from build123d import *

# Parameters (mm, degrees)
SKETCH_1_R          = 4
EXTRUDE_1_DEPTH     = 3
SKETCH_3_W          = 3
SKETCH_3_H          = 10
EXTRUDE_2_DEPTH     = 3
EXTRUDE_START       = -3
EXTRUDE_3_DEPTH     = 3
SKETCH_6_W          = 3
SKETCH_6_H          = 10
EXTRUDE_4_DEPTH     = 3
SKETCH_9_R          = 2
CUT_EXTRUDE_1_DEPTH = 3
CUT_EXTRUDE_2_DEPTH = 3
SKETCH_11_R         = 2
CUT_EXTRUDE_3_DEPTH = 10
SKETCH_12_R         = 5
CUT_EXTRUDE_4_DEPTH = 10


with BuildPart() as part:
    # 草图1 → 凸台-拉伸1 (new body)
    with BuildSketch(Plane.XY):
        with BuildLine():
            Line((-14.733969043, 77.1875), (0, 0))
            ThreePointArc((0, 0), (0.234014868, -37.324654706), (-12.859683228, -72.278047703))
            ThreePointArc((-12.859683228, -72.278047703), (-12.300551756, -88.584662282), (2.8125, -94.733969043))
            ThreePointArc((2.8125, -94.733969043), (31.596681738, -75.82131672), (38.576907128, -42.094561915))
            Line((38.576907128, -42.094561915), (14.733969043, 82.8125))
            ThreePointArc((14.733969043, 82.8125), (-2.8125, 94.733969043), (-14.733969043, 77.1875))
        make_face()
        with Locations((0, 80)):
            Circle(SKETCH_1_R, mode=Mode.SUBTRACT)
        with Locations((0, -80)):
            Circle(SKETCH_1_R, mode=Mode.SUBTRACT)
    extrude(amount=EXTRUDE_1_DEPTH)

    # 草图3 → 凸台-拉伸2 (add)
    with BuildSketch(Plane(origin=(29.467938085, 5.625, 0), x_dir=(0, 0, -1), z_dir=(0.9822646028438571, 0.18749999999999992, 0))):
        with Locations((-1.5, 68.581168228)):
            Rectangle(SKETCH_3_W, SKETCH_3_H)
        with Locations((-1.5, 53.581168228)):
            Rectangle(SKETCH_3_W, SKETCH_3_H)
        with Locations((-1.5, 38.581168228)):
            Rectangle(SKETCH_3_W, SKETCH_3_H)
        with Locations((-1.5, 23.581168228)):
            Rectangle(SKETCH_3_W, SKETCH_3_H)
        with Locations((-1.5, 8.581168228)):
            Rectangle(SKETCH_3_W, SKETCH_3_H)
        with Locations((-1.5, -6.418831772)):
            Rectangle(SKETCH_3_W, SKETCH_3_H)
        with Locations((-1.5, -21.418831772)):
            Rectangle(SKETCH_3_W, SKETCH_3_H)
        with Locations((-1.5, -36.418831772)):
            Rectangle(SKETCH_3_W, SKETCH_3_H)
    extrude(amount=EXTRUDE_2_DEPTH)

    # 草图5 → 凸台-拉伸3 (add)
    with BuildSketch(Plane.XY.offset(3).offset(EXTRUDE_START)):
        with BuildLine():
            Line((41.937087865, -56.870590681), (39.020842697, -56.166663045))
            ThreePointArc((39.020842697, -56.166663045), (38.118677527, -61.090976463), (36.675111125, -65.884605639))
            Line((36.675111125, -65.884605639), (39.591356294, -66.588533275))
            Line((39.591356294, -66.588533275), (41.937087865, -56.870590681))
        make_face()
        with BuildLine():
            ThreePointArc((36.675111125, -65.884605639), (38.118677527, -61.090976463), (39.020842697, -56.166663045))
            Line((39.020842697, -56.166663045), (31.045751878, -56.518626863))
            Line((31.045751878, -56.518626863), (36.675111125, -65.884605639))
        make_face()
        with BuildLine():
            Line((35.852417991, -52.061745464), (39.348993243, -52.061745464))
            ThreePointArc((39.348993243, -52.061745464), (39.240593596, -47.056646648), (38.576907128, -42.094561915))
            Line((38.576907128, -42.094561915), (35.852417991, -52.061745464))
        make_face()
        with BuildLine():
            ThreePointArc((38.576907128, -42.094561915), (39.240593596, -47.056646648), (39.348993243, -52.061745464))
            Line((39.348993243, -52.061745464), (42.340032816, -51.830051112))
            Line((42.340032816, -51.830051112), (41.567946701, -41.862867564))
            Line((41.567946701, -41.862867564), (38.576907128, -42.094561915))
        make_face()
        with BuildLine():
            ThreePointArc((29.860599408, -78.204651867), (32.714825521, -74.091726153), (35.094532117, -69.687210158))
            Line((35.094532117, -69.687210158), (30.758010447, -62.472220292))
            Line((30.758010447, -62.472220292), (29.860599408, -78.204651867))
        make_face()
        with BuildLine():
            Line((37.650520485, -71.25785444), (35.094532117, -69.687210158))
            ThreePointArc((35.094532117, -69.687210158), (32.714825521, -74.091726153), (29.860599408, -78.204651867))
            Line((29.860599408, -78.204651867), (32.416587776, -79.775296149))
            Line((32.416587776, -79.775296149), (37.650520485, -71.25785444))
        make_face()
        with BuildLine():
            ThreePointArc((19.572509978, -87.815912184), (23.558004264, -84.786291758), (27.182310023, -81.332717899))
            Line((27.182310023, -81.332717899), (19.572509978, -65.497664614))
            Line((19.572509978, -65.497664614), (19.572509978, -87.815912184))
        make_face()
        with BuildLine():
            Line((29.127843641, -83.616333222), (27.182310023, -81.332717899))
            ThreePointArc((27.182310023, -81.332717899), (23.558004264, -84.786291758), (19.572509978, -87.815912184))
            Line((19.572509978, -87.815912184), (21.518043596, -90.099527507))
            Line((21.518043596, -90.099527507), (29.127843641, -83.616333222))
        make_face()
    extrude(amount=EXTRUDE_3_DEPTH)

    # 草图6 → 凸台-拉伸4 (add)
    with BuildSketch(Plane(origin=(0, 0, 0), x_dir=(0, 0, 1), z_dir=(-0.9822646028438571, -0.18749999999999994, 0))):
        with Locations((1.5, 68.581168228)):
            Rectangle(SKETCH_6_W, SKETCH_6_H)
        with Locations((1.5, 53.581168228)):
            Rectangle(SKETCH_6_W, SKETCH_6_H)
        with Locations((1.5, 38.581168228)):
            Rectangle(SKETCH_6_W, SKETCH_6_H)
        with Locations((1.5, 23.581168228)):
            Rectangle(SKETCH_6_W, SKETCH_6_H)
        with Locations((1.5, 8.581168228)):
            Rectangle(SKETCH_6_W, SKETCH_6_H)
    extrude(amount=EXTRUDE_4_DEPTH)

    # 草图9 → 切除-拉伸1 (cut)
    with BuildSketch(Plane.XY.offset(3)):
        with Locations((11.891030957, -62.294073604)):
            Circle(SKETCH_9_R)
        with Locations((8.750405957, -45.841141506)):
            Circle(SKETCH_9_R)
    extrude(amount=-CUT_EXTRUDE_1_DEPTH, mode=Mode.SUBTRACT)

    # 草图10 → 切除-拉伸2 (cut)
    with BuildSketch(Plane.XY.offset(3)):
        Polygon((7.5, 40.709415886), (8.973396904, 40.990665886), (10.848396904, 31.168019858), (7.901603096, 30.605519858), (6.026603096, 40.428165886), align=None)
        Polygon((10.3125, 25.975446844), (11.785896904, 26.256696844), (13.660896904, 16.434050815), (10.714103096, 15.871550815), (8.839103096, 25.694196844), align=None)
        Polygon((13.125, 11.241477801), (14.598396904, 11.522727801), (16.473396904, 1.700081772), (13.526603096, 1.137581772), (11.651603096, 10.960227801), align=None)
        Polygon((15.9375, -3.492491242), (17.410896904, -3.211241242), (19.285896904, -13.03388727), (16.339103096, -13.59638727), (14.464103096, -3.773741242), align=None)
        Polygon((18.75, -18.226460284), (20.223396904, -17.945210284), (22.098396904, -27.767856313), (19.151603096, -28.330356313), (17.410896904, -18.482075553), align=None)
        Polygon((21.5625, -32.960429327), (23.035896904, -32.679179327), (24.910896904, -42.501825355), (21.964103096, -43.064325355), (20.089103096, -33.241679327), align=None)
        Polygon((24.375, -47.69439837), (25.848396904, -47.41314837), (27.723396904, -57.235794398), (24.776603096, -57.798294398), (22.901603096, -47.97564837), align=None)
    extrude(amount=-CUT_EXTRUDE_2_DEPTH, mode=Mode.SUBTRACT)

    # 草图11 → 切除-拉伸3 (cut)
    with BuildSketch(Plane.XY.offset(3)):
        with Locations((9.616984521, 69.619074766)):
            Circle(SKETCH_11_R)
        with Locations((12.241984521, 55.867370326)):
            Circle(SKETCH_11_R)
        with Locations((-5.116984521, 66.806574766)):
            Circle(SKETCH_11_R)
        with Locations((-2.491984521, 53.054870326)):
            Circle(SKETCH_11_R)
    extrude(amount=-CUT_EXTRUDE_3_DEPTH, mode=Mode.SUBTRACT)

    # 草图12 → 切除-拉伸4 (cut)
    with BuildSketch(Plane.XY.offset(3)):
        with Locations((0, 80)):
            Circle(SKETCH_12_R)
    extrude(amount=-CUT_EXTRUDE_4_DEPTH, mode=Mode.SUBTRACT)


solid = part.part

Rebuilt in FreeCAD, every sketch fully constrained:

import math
import FreeCAD as App
import Part
import Sketcher
Q = App.Units.Quantity


def add_polygon(sketch, points):
    """Adds a closed chain of lines whose ends are joined by coincident constraints."""
    first, n = sketch.GeometryCount, len(points)
    for a, b in zip(points, points[1:] + points[:1]):
        sketch.addGeometry(Part.LineSegment(App.Vector(*a, 0), App.Vector(*b, 0)), False)
    for i in range(n):
        sketch.addConstraint(Sketcher.Constraint("Coincident", first + i, 2, first + (i + 1) % n, 1))

doc = App.newDocument("Part")
body = doc.addObject("PartDesign::Body", "Body")

sketch1 = body.newObject("Sketcher::SketchObject", "Sketch")
sketch1.AttachmentSupport = (doc.getObject("XY_Plane"), [""])
sketch1.MapMode = "FlatFace"
sketch1.addGeometry(Part.LineSegment(App.Vector(-14.7, 77.2, 0), App.Vector(0, 0, 0)), False)
sketch1.addGeometry(Part.ArcOfCircle(Part.Circle(App.Vector(-101.1, -19.3, 0), App.Vector(0, 0, 1), 102.9), math.radians(-31), math.radians(11)), False)
sketch1.addGeometry(Part.ArcOfCircle(Part.Circle(App.Vector(0, -80, 0), App.Vector(0, 0, 1), 15), math.radians(149), math.radians(281)), False)
sketch1.addGeometry(Part.ArcOfCircle(Part.Circle(App.Vector(-5.6, -50.5, 0), App.Vector(0, 0, 1), 45), math.radians(-79), math.radians(11)), False)
sketch1.addGeometry(Part.LineSegment(App.Vector(38.6, -42.1, 0), App.Vector(14.7, 82.8, 0)), False)
sketch1.addGeometry(Part.ArcOfCircle(Part.Circle(App.Vector(0, 80, 0), App.Vector(0, 0, 1), 15), math.radians(11), math.radians(191)), False)
sketch1.addGeometry(Part.Circle(App.Vector(0, -80, 0), App.Vector(0, 0, 1), 4), False)
sketch1.addGeometry(Part.Circle(App.Vector(0, 80, 0), App.Vector(0, 0, 1), 4), False)
sketch1.addConstraint(Sketcher.Constraint("Tangent", 0, 2, 1, 2))
sketch1.addConstraint(Sketcher.Constraint("Tangent", 1, 1, 2, 1))
sketch1.addConstraint(Sketcher.Constraint("Tangent", 2, 2, 3, 1))
sketch1.addConstraint(Sketcher.Constraint("Tangent", 3, 2, 4, 1))
sketch1.addConstraint(Sketcher.Constraint("Tangent", 4, 2, 5, 1))
sketch1.addConstraint(Sketcher.Constraint("Tangent", 5, 2, 0, 1))
sketch1.addConstraint(Sketcher.Constraint("Coincident", 0, 2, -1, 1))
sketch1.addConstraint(Sketcher.Constraint("Coincident", 6, 3, 2, 3))
sketch1.addConstraint(Sketcher.Constraint("Coincident", 7, 3, 5, 3))
sketch1.addConstraint(Sketcher.Constraint("Equal", 2, 5))
sketch1.addConstraint(Sketcher.Constraint("Equal", 6, 7))
sketch1.addConstraint(Sketcher.Constraint("Symmetric", 2, 3, 5, 3, -1, 1))
sketch1.addConstraint(Sketcher.Constraint("PointOnObject", 2, 3, -2))
sketch1.addConstraint(Sketcher.Constraint("Parallel", 0, 4))
sketch1.addConstraint(Sketcher.Constraint("Diameter", 6, Q("8 mm")))
sketch1.addConstraint(Sketcher.Constraint("Radius", 2, Q("15 mm")))
sketch1.addConstraint(Sketcher.Constraint("Radius", 3, Q("45 mm")))
sketch1.addConstraint(Sketcher.Constraint("DistanceY", 2, 3, -1, 1, Q("80 mm")))
pad1 = body.newObject("PartDesign::Pad", "Pad")
pad1.Profile = sketch1
pad1.Length = 3

sketch2 = body.newObject("Sketcher::SketchObject", "Sketch001")
sketch2.Placement = App.Placement(App.Vector(29.467938, 5.625, 0), App.Rotation(App.Vector(0, 0, -1), App.Vector(-0.1875, 0.982264603, 0), App.Vector(0.982264603, 0.1875, 0), "ZXY"))
add_polygon(sketch2, [(-3, 73.6), (-3, 63.6), (0, 63.6), (0, 73.6)])
add_polygon(sketch2, [(-3, 58.6), (-3, 48.6), (0, 48.6), (0, 58.6)])
add_polygon(sketch2, [(-3, 43.6), (-3, 33.6), (0, 33.6), (0, 43.6)])
add_polygon(sketch2, [(-3, 28.6), (-3, 18.6), (0, 18.6), (0, 28.6)])
add_polygon(sketch2, [(-3, 13.6), (-3, 3.6), (0, 3.6), (0, 13.6)])
add_polygon(sketch2, [(-3, -1.4), (-3, -11.4), (0, -11.4), (0, -1.4)])
add_polygon(sketch2, [(-3, -16.4), (-3, -26.4), (0, -26.4), (0, -16.4)])
add_polygon(sketch2, [(-3, -31.4), (-3, -41.4), (0, -41.4), (0, -31.4)])
sketch2.addConstraint(Sketcher.Constraint("Vertical", 0))
sketch2.addConstraint(Sketcher.Constraint("Horizontal", 1))
sketch2.addConstraint(Sketcher.Constraint("Vertical", 2))
sketch2.addConstraint(Sketcher.Constraint("Horizontal", 3))
sketch2.addConstraint(Sketcher.Constraint("Vertical", 4))
sketch2.addConstraint(Sketcher.Constraint("Horizontal", 5))
sketch2.addConstraint(Sketcher.Constraint("Vertical", 6))
sketch2.addConstraint(Sketcher.Constraint("Horizontal", 7))
sketch2.addConstraint(Sketcher.Constraint("Vertical", 8))
sketch2.addConstraint(Sketcher.Constraint("Horizontal", 9))
sketch2.addConstraint(Sketcher.Constraint("Vertical", 10))
sketch2.addConstraint(Sketcher.Constraint("Horizontal", 11))
sketch2.addConstraint(Sketcher.Constraint("Vertical", 12))
sketch2.addConstraint(Sketcher.Constraint("Horizontal", 13))
sketch2.addConstraint(Sketcher.Constraint("Vertical", 14))
sketch2.addConstraint(Sketcher.Constraint("Horizontal", 15))
sketch2.addConstraint(Sketcher.Constraint("Vertical", 16))
sketch2.addConstraint(Sketcher.Constraint("Horizontal", 17))
sketch2.addConstraint(Sketcher.Constraint("Vertical", 18))
sketch2.addConstraint(Sketcher.Constraint("Horizontal", 19))
sketch2.addConstraint(Sketcher.Constraint("Vertical", 20))
sketch2.addConstraint(Sketcher.Constraint("Horizontal", 21))
sketch2.addConstraint(Sketcher.Constraint("Vertical", 22))
sketch2.addConstraint(Sketcher.Constraint("Horizontal", 23))
sketch2.addConstraint(Sketcher.Constraint("Vertical", 24))
sketch2.addConstraint(Sketcher.Constraint("Horizontal", 25))
sketch2.addConstraint(Sketcher.Constraint("Vertical", 26))
sketch2.addConstraint(Sketcher.Constraint("Horizontal", 27))
sketch2.addConstraint(Sketcher.Constraint("Vertical", 28))
sketch2.addConstraint(Sketcher.Constraint("Horizontal", 29))
sketch2.addConstraint(Sketcher.Constraint("Vertical", 30))
sketch2.addConstraint(Sketcher.Constraint("Horizontal", 31))
sketch2.addConstraint(Sketcher.Constraint("PointOnObject", 1, 2, -2))
sketch2.addConstraint(Sketcher.Constraint("PointOnObject", 5, 2, -2))
sketch2.addConstraint(Sketcher.Constraint("PointOnObject", 9, 2, -2))
sketch2.addConstraint(Sketcher.Constraint("PointOnObject", 13, 2, -2))
sketch2.addConstraint(Sketcher.Constraint("PointOnObject", 17, 2, -2))
sketch2.addConstraint(Sketcher.Constraint("PointOnObject", 21, 2, -2))
sketch2.addConstraint(Sketcher.Constraint("PointOnObject", 25, 2, -2))
sketch2.addConstraint(Sketcher.Constraint("PointOnObject", 29, 2, -2))
sketch2.addConstraint(Sketcher.Constraint("Vertical", 3, 2, 4, 2))
sketch2.addConstraint(Sketcher.Constraint("Vertical", 7, 2, 8, 2))
sketch2.addConstraint(Sketcher.Constraint("Vertical", 11, 2, 12, 2))
sketch2.addConstraint(Sketcher.Constraint("Vertical", 15, 2, 16, 2))
sketch2.addConstraint(Sketcher.Constraint("Vertical", 19, 2, 20, 2))
sketch2.addConstraint(Sketcher.Constraint("Vertical", 23, 2, 24, 2))
sketch2.addConstraint(Sketcher.Constraint("Vertical", 27, 2, 28, 2))
sketch2.addConstraint(Sketcher.Constraint("Equal", 2, 4))
sketch2.addConstraint(Sketcher.Constraint("Equal", 6, 8))
sketch2.addConstraint(Sketcher.Constraint("Equal", 10, 12))
sketch2.addConstraint(Sketcher.Constraint("Equal", 14, 16))
sketch2.addConstraint(Sketcher.Constraint("Equal", 18, 20))
sketch2.addConstraint(Sketcher.Constraint("Equal", 22, 24))
sketch2.addConstraint(Sketcher.Constraint("Equal", 26, 28))
sketch2.addConstraint(Sketcher.Constraint("DistanceX", 1, 1, 1, 2, Q("3 mm")))
sketch2.addConstraint(Sketcher.Constraint("DistanceY", 0, 2, 0, 1, Q("10 mm")))
sketch2.addConstraint(Sketcher.Constraint("DistanceY", 4, 2, 0, 2, Q("15 mm")))
sketch2.addConstraint(Sketcher.Constraint("DistanceY", 8, 2, 4, 2, Q("15 mm")))
sketch2.addConstraint(Sketcher.Constraint("DistanceY", 12, 2, 8, 2, Q("15 mm")))
sketch2.addConstraint(Sketcher.Constraint("DistanceY", 16, 2, 12, 2, Q("15 mm")))
sketch2.addConstraint(Sketcher.Constraint("DistanceY", 20, 2, 16, 2, Q("15 mm")))
sketch2.addConstraint(Sketcher.Constraint("DistanceY", 24, 2, 20, 2, Q("15 mm")))
sketch2.addConstraint(Sketcher.Constraint("DistanceY", 28, 2, 24, 2, Q("15 mm")))
sketch2.addConstraint(Sketcher.Constraint("DistanceY", -1, 1, 0, 2, Q("63.581168 mm")))
pad2 = body.newObject("PartDesign::Pad", "Pad001")
pad2.Profile = sketch2
pad2.Length = 3

sketch3 = body.newObject("Sketcher::SketchObject", "Sketch002")
sketch3.AttachmentSupport = (doc.getObject("XY_Plane"), [""])
sketch3.MapMode = "FlatFace"
add_polygon(sketch3, [(41.9, -56.9), (39, -56.2), (31, -56.5), (36.7, -65.9), (39.6, -66.6)])
add_polygon(sketch3, [(35.9, -52.1), (39.3, -52.1), (42.3, -51.8), (41.6, -41.9), (38.6, -42.1)])
add_polygon(sketch3, [(35.1, -69.7), (30.8, -62.5), (29.9, -78.2), (32.4, -79.8), (37.7, -71.3)])
add_polygon(sketch3, [(27.2, -81.3), (19.6, -65.5), (19.6, -87.8), (21.5, -90.1), (29.1, -83.6)])
sketch3.addConstraint(Sketcher.Constraint("Horizontal", 5))
sketch3.addConstraint(Sketcher.Constraint("Vertical", 16))
sketch3.addConstraint(Sketcher.Constraint("Parallel", 0, 3))
sketch3.addConstraint(Sketcher.Constraint("Perpendicular", 3, 4))
sketch3.addConstraint(Sketcher.Constraint("Perpendicular", 6, 7))
sketch3.addConstraint(Sketcher.Constraint("Perpendicular", 7, 8))
sketch3.addConstraint(Sketcher.Constraint("Parallel", 2, 10))
sketch3.addConstraint(Sketcher.Constraint("Perpendicular", 12, 13))
sketch3.addConstraint(Sketcher.Constraint("Perpendicular", 13, 14))
sketch3.addConstraint(Sketcher.Constraint("Perpendicular", 17, 18))
sketch3.addConstraint(Sketcher.Constraint("Perpendicular", 18, 19))
sketch3.addConstraint(Sketcher.Constraint("Equal", 0, 3))
sketch3.addConstraint(Sketcher.Constraint("Equal", 3, 6))
sketch3.addConstraint(Sketcher.Constraint("Equal", 4, 7))
sketch3.addConstraint(Sketcher.Constraint("Equal", 6, 8))
sketch3.addConstraint(Sketcher.Constraint("Equal", 8, 12))
sketch3.addConstraint(Sketcher.Constraint("Equal", 7, 13))
sketch3.addConstraint(Sketcher.Constraint("Equal", 12, 14))
sketch3.addConstraint(Sketcher.Constraint("Equal", 14, 17))
sketch3.addConstraint(Sketcher.Constraint("Equal", 13, 18))
sketch3.addConstraint(Sketcher.Constraint("Equal", 17, 19))
sketch3.addConstraint(Sketcher.Constraint("Distance", 0, Q("3 mm")))
sketch3.addConstraint(Sketcher.Constraint("DistanceX", -1, 1, 11, 2, Q("29.860599 mm")))
sketch3.addConstraint(Sketcher.Constraint("DistanceY", 0, 2, 8, 2, Q("14.072101 mm")))
sketch3.addConstraint(Sketcher.Constraint("DistanceX", 10, 2, 2, 2, Q("5.917101 mm")))
sketch3.addConstraint(Sketcher.Constraint("DistanceX", 15, 2, 10, 2, Q("11.1855 mm")))
sketch3.addConstraint(Sketcher.Constraint("DistanceX", 17, 2, 18, 2, Q("7.6098 mm")))
sketch3.addConstraint(Sketcher.Constraint("Distance", 9, Q("10.33284 mm")))
sketch3.addConstraint(Sketcher.Constraint("DistanceX", 5, 1, 5, 2, Q("3.496575 mm")))
sketch3.addConstraint(Sketcher.Constraint("DistanceY", 16, 2, 16, 1, Q("22.318248 mm")))
sketch3.addConstraint(Sketcher.Constraint("DistanceX", -1, 1, 1, 2, Q("31.045752 mm")))
sketch3.addConstraint(Sketcher.Constraint("DistanceX", -1, 1, 2, 2, Q("36.675111 mm")))
sketch3.addConstraint(Sketcher.Constraint("DistanceY", 4, 2, -1, 1, Q("56.870591 mm")))
sketch3.addConstraint(Sketcher.Constraint("DistanceY", 6, 2, -1, 1, Q("51.830051 mm")))
sketch3.addConstraint(Sketcher.Constraint("DistanceY", 8, 2, -1, 1, Q("42.094562 mm")))
sketch3.addConstraint(Sketcher.Constraint("DistanceY", 10, 2, -1, 1, Q("62.47222 mm")))
sketch3.addConstraint(Sketcher.Constraint("DistanceY", 11, 2, -1, 1, Q("78.204652 mm")))
sketch3.addConstraint(Sketcher.Constraint("DistanceX", -1, 1, 13, 2, Q("37.65052 mm")))
sketch3.addConstraint(Sketcher.Constraint("DistanceX", 0, 2, 5, 2, Q("0.328151 mm")))
sketch3.addConstraint(Sketcher.Constraint("DistanceY", 2, 2, 15, 2, Q("0.386941 mm")))
pad3 = body.newObject("PartDesign::Pad", "Pad002")
pad3.Profile = sketch3
pad3.Length = 3

sketch4 = body.newObject("Sketcher::SketchObject", "Sketch003")
sketch4.Placement = App.Placement(App.Vector(0, 0, 0), App.Rotation(App.Vector(0, 0, 1), App.Vector(-0.1875, 0.982264603, 0), App.Vector(-0.982264603, -0.1875, 0), "ZXY"))
add_polygon(sketch4, [(0, 73.6), (0, 63.6), (3, 63.6), (3, 73.6)])
add_polygon(sketch4, [(0, 58.6), (0, 48.6), (3, 48.6), (3, 58.6)])
add_polygon(sketch4, [(0, 43.6), (0, 33.6), (3, 33.6), (3, 43.6)])
add_polygon(sketch4, [(0, 28.6), (0, 18.6), (3, 18.6), (3, 28.6)])
add_polygon(sketch4, [(0, 13.6), (0, 3.6), (3, 3.6), (3, 13.6)])
sketch4.addConstraint(Sketcher.Constraint("Vertical", 0))
sketch4.addConstraint(Sketcher.Constraint("Horizontal", 1))
sketch4.addConstraint(Sketcher.Constraint("Vertical", 2))
sketch4.addConstraint(Sketcher.Constraint("Horizontal", 3))
sketch4.addConstraint(Sketcher.Constraint("Vertical", 4))
sketch4.addConstraint(Sketcher.Constraint("Horizontal", 5))
sketch4.addConstraint(Sketcher.Constraint("Vertical", 6))
sketch4.addConstraint(Sketcher.Constraint("Horizontal", 7))
sketch4.addConstraint(Sketcher.Constraint("Vertical", 8))
sketch4.addConstraint(Sketcher.Constraint("Horizontal", 9))
sketch4.addConstraint(Sketcher.Constraint("Vertical", 10))
sketch4.addConstraint(Sketcher.Constraint("Horizontal", 11))
sketch4.addConstraint(Sketcher.Constraint("Vertical", 12))
sketch4.addConstraint(Sketcher.Constraint("Horizontal", 13))
sketch4.addConstraint(Sketcher.Constraint("Vertical", 14))
sketch4.addConstraint(Sketcher.Constraint("Horizontal", 15))
sketch4.addConstraint(Sketcher.Constraint("Vertical", 16))
sketch4.addConstraint(Sketcher.Constraint("Horizontal", 17))
sketch4.addConstraint(Sketcher.Constraint("Vertical", 18))
sketch4.addConstraint(Sketcher.Constraint("Horizontal", 19))
sketch4.addConstraint(Sketcher.Constraint("PointOnObject", 0, 2, -2))
sketch4.addConstraint(Sketcher.Constraint("PointOnObject", 4, 2, -2))
sketch4.addConstraint(Sketcher.Constraint("PointOnObject", 8, 2, -2))
sketch4.addConstraint(Sketcher.Constraint("PointOnObject", 12, 2, -2))
sketch4.addConstraint(Sketcher.Constraint("PointOnObject", 16, 2, -2))
sketch4.addConstraint(Sketcher.Constraint("Vertical", 2, 2, 5, 2))
sketch4.addConstraint(Sketcher.Constraint("Vertical", 6, 2, 9, 2))
sketch4.addConstraint(Sketcher.Constraint("Vertical", 10, 2, 13, 2))
sketch4.addConstraint(Sketcher.Constraint("Vertical", 14, 2, 17, 2))
sketch4.addConstraint(Sketcher.Constraint("Equal", 2, 4))
sketch4.addConstraint(Sketcher.Constraint("Equal", 6, 8))
sketch4.addConstraint(Sketcher.Constraint("Equal", 10, 12))
sketch4.addConstraint(Sketcher.Constraint("Equal", 14, 16))
sketch4.addConstraint(Sketcher.Constraint("DistanceX", 1, 1, 1, 2, Q("3 mm")))
sketch4.addConstraint(Sketcher.Constraint("DistanceY", 0, 2, 0, 1, Q("10 mm")))
sketch4.addConstraint(Sketcher.Constraint("DistanceY", 4, 2, 0, 2, Q("15 mm")))
sketch4.addConstraint(Sketcher.Constraint("DistanceY", 8, 2, 4, 2, Q("15 mm")))
sketch4.addConstraint(Sketcher.Constraint("DistanceY", 12, 2, 8, 2, Q("15 mm")))
sketch4.addConstraint(Sketcher.Constraint("DistanceY", 16, 2, 12, 2, Q("15 mm")))
sketch4.addConstraint(Sketcher.Constraint("DistanceY", -1, 1, 0, 2, Q("63.581168 mm")))
pad4 = body.newObject("PartDesign::Pad", "Pad003")
pad4.Profile = sketch4
pad4.Length = 3

sketch5 = body.newObject("Sketcher::SketchObject", "Sketch004")
sketch5.AttachmentSupport = (doc.getObject("XY_Plane"), [""])
sketch5.MapMode = "FlatFace"
sketch5.AttachmentOffset = App.Placement(App.Vector(0, 0, 3), App.Rotation())
sketch5.addGeometry(Part.Circle(App.Vector(11.9, -62.3, 0), App.Vector(0, 0, 1), 2), False)
sketch5.addGeometry(Part.Circle(App.Vector(8.8, -45.8, 0), App.Vector(0, 0, 1), 2), False)
sketch5.addConstraint(Sketcher.Constraint("Equal", 0, 1))
sketch5.addConstraint(Sketcher.Constraint("Diameter", 0, Q("4 mm")))
sketch5.addConstraint(Sketcher.Constraint("DistanceX", -1, 1, 0, 3, Q("11.891031 mm")))
sketch5.addConstraint(Sketcher.Constraint("DistanceY", 1, 3, -1, 1, Q("45.841142 mm")))
sketch5.addConstraint(Sketcher.Constraint("DistanceY", 0, 3, -1, 1, Q("62.294074 mm")))
sketch5.addConstraint(Sketcher.Constraint("DistanceX", -1, 1, 1, 3, Q("8.750406 mm")))
pocket1 = body.newObject("PartDesign::Pocket", "Pocket")
pocket1.Profile = sketch5
pocket1.Length = 3

sketch6 = body.newObject("Sketcher::SketchObject", "Sketch005")
sketch6.AttachmentSupport = (doc.getObject("XY_Plane"), [""])
sketch6.MapMode = "FlatFace"
sketch6.AttachmentOffset = App.Placement(App.Vector(0, 0, 3), App.Rotation())
add_polygon(sketch6, [(9, 41), (6, 40.4), (7.9, 30.6), (10.8, 31.2)])
add_polygon(sketch6, [(11.8, 26.3), (8.8, 25.7), (10.7, 15.9), (13.7, 16.4)])
add_polygon(sketch6, [(14.6, 11.5), (11.7, 11), (13.5, 1.1), (16.5, 1.7)])
add_polygon(sketch6, [(17.4, -3.2), (14.5, -3.8), (16.3, -13.6), (19.3, -13)])
add_polygon(sketch6, [(20.2, -17.9), (18.8, -18.2), (17.4, -18.5), (19.2, -28.3), (22.1, -27.8)])
add_polygon(sketch6, [(23, -32.7), (20.1, -33.2), (22, -43.1), (24.9, -42.5)])
add_polygon(sketch6, [(25.8, -47.4), (22.9, -48), (24.8, -57.8), (27.7, -57.2)])
sketch6.addConstraint(Sketcher.Constraint("Perpendicular", 0, 1))
sketch6.addConstraint(Sketcher.Constraint("Perpendicular", 1, 2))
sketch6.addConstraint(Sketcher.Constraint("Perpendicular", 2, 3))
sketch6.addConstraint(Sketcher.Constraint("Perpendicular", 3, 4))
sketch6.addConstraint(Sketcher.Constraint("Perpendicular", 4, 5))
sketch6.addConstraint(Sketcher.Constraint("Perpendicular", 5, 6))
sketch6.addConstraint(Sketcher.Constraint("Perpendicular", 6, 7))
sketch6.addConstraint(Sketcher.Constraint("Perpendicular", 7, 8))
sketch6.addConstraint(Sketcher.Constraint("Perpendicular", 8, 9))
sketch6.addConstraint(Sketcher.Constraint("Perpendicular", 9, 10))
sketch6.addConstraint(Sketcher.Constraint("Perpendicular", 10, 11))
sketch6.addConstraint(Sketcher.Constraint("Perpendicular", 11, 12))
sketch6.addConstraint(Sketcher.Constraint("Perpendicular", 12, 13))
sketch6.addConstraint(Sketcher.Constraint("Perpendicular", 13, 14))
sketch6.addConstraint(Sketcher.Constraint("Perpendicular", 14, 15))
sketch6.addConstraint(Sketcher.Constraint("Perpendicular", 15, 16))
sketch6.addConstraint(Sketcher.Constraint("Parallel", 16, 17))
sketch6.addConstraint(Sketcher.Constraint("Parallel", 17, 19))
sketch6.addConstraint(Sketcher.Constraint("Perpendicular", 19, 20))
sketch6.addConstraint(Sketcher.Constraint("Perpendicular", 20, 21))
sketch6.addConstraint(Sketcher.Constraint("Perpendicular", 21, 22))
sketch6.addConstraint(Sketcher.Constraint("Perpendicular", 22, 23))
sketch6.addConstraint(Sketcher.Constraint("Perpendicular", 23, 24))
sketch6.addConstraint(Sketcher.Constraint("Perpendicular", 24, 25))
sketch6.addConstraint(Sketcher.Constraint("Perpendicular", 25, 26))
sketch6.addConstraint(Sketcher.Constraint("Perpendicular", 26, 27))
sketch6.addConstraint(Sketcher.Constraint("Perpendicular", 27, 28))
sketch6.addConstraint(Sketcher.Constraint("Vertical", 15, 2, 17, 2))
sketch6.addConstraint(Sketcher.Constraint("Equal", 2, 4))
sketch6.addConstraint(Sketcher.Constraint("Equal", 3, 5))
sketch6.addConstraint(Sketcher.Constraint("Equal", 6, 8))
sketch6.addConstraint(Sketcher.Constraint("Equal", 7, 9))
sketch6.addConstraint(Sketcher.Constraint("Equal", 10, 12))
sketch6.addConstraint(Sketcher.Constraint("Equal", 11, 13))
sketch6.addConstraint(Sketcher.Constraint("Equal", 14, 19))
sketch6.addConstraint(Sketcher.Constraint("Equal", 15, 20))
sketch6.addConstraint(Sketcher.Constraint("Equal", 19, 21))
sketch6.addConstraint(Sketcher.Constraint("Equal", 20, 22))
sketch6.addConstraint(Sketcher.Constraint("Equal", 23, 25))
sketch6.addConstraint(Sketcher.Constraint("Equal", 24, 26))
sketch6.addConstraint(Sketcher.Constraint("Distance", 0, Q("3 mm")))
sketch6.addConstraint(Sketcher.Constraint("Distance", 1, Q("10 mm")))
sketch6.addConstraint(Sketcher.Constraint("Distance", 16, Q("1.5 mm")))
sketch6.addConstraint(Sketcher.Constraint("DistanceX", -1, 1, 16, 2, Q("18.75 mm")))
sketch6.addConstraint(Sketcher.Constraint("DistanceX", 1, 2, 8, 2, Q("3.75 mm")))
sketch6.addConstraint(Sketcher.Constraint("DistanceX", 5, 2, 12, 2, Q("3.75 mm")))
sketch6.addConstraint(Sketcher.Constraint("DistanceX", 18, 2, 25, 2, Q("3.75 mm")))
sketch6.addConstraint(Sketcher.Constraint("DistanceX", 0, 2, 1, 2, Q("1.875 mm")))
sketch6.addConstraint(Sketcher.Constraint("DistanceX", 1, 2, 4, 2, Q("0.9375 mm")))
sketch6.addConstraint(Sketcher.Constraint("DistanceX", 13, 2, 18, 2, Q("2.8125 mm")))
sketch6.addConstraint(Sketcher.Constraint("DistanceX", 18, 2, 21, 2, Q("0.9375 mm")))
sketch6.addConstraint(Sketcher.Constraint("DistanceY", -1, 1, 1, 2, Q("30.60552 mm")))
sketch6.addConstraint(Sketcher.Constraint("DistanceY", -1, 1, 5, 2, Q("15.871551 mm")))
sketch6.addConstraint(Sketcher.Constraint("DistanceY", -1, 1, 9, 2, Q("1.137582 mm")))
sketch6.addConstraint(Sketcher.Constraint("DistanceY", 12, 2, -1, 1, Q("3.773741 mm")))
sketch6.addConstraint(Sketcher.Constraint("DistanceY", 16, 2, -1, 1, Q("18.22646 mm")))
sketch6.addConstraint(Sketcher.Constraint("DistanceY", 21, 2, -1, 1, Q("33.241679 mm")))
sketch6.addConstraint(Sketcher.Constraint("DistanceY", 25, 2, -1, 1, Q("47.975648 mm")))
pocket2 = body.newObject("PartDesign::Pocket", "Pocket001")
pocket2.Profile = sketch6
pocket2.Length = 3

sketch7 = body.newObject("Sketcher::SketchObject", "Sketch006")
sketch7.AttachmentSupport = (doc.getObject("XY_Plane"), [""])
sketch7.MapMode = "FlatFace"
sketch7.AttachmentOffset = App.Placement(App.Vector(0, 0, 3), App.Rotation())
sketch7.addGeometry(Part.Circle(App.Vector(9.6, 69.6, 0), App.Vector(0, 0, 1), 2), False)
sketch7.addGeometry(Part.Circle(App.Vector(12.2, 55.9, 0), App.Vector(0, 0, 1), 2), False)
sketch7.addGeometry(Part.Circle(App.Vector(-5.1, 66.8, 0), App.Vector(0, 0, 1), 2), False)
sketch7.addGeometry(Part.Circle(App.Vector(-2.5, 53.1, 0), App.Vector(0, 0, 1), 2), False)
sketch7.addConstraint(Sketcher.Constraint("Equal", 0, 1))
sketch7.addConstraint(Sketcher.Constraint("Equal", 1, 2))
sketch7.addConstraint(Sketcher.Constraint("Equal", 2, 3))
sketch7.addConstraint(Sketcher.Constraint("Diameter", 0, Q("4 mm")))
sketch7.addConstraint(Sketcher.Constraint("DistanceX", 0, 3, 1, 3, Q("2.625 mm")))
sketch7.addConstraint(Sketcher.Constraint("DistanceX", 2, 3, 3, 3, Q("2.625 mm")))
sketch7.addConstraint(Sketcher.Constraint("DistanceY", 2, 3, 0, 3, Q("2.8125 mm")))
sketch7.addConstraint(Sketcher.Constraint("DistanceY", 3, 3, 1, 3, Q("2.8125 mm")))
sketch7.addConstraint(Sketcher.Constraint("DistanceY", -1, 1, 1, 3, Q("55.86737 mm")))
sketch7.addConstraint(Sketcher.Constraint("DistanceX", 2, 3, 0, 3, Q("14.733969 mm")))
sketch7.addConstraint(Sketcher.Constraint("DistanceX", -1, 1, 0, 3, Q("9.616985 mm")))
sketch7.addConstraint(Sketcher.Constraint("DistanceY", -1, 1, 0, 3, Q("69.619075 mm")))
pocket3 = body.newObject("PartDesign::Pocket", "Pocket002")
pocket3.Profile = sketch7
pocket3.Length = 10

sketch8 = body.newObject("Sketcher::SketchObject", "Sketch007")
sketch8.AttachmentSupport = (doc.getObject("XY_Plane"), [""])
sketch8.MapMode = "FlatFace"
sketch8.AttachmentOffset = App.Placement(App.Vector(0, 0, 3), App.Rotation())
sketch8.addGeometry(Part.Circle(App.Vector(0, 80, 0), App.Vector(0, 0, 1), 5), False)
sketch8.addConstraint(Sketcher.Constraint("PointOnObject", 0, 3, -2))
sketch8.addConstraint(Sketcher.Constraint("Diameter", 0, Q("10 mm")))
sketch8.addConstraint(Sketcher.Constraint("DistanceY", -1, 1, 0, 3, Q("80 mm")))
pocket4 = body.newObject("PartDesign::Pocket", "Pocket003")
pocket4.Profile = sketch8
pocket4.Length = 10

doc.recompute()
